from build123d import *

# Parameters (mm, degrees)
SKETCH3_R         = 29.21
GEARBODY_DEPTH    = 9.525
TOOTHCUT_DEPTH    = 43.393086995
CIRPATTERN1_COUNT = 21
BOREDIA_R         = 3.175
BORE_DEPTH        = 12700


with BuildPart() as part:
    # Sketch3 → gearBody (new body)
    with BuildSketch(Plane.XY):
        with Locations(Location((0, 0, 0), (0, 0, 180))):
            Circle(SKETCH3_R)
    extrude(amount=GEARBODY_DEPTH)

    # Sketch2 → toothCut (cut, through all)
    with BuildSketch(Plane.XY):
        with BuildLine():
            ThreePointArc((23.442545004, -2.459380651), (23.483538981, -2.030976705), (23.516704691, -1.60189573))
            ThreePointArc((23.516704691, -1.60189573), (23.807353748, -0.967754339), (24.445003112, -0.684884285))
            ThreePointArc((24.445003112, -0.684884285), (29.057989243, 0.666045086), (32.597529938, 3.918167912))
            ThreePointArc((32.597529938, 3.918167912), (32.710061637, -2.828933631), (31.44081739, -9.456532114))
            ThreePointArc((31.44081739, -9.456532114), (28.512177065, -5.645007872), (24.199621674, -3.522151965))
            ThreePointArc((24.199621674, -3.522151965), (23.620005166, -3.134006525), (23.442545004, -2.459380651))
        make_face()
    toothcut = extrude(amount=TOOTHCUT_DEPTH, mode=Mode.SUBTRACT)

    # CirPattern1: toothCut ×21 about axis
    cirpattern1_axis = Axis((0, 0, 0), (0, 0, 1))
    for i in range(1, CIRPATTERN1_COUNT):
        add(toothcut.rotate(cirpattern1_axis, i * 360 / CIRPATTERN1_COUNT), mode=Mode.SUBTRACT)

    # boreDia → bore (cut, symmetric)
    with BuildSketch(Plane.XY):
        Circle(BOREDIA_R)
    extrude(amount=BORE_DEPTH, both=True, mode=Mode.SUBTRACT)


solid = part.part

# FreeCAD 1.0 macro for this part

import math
import FreeCAD as App
import Part
import Sketcher
Q = App.Units.Quantity

doc = App.newDocument("Part")
body = doc.addObject("PartDesign::Body", "Body")

sketch1 = body.newObject("Sketcher::SketchObject", "Sketch")
sketch1.AttachmentSupport = (doc.getObject("XY_Plane"), [""])
sketch1.MapMode = "FlatFace"
sketch1.addGeometry(Part.Circle(App.Vector(0, 0, 0), App.Vector(0, 0, 1), 29), False)
sketch1.addConstraint(Sketcher.Constraint("Coincident", 0, 3, -1, 1))
sketch1.addConstraint(Sketcher.Constraint("Diameter", 0, Q("2.3 in")))
pad1 = body.newObject("PartDesign::Pad", "Pad")
pad1.Profile = sketch1
pad1.Length = Q("0.375 in")

sketch2 = body.newObject("Sketcher::SketchObject", "Sketch001")
sketch2.AttachmentSupport = (doc.getObject("XY_Plane"), [""])
sketch2.MapMode = "FlatFace"
sketch2.addGeometry(Part.ArcOfCircle(Part.Circle(App.Vector(0, 0, 0), App.Vector(0, 0, 1), 23.6), math.radians(-5.99), math.radians(-3.9)), False)
sketch2.addGeometry(Part.ArcOfCircle(Part.Circle(App.Vector(24.4, -2.6, 0), App.Vector(0, 0, 1), 1), math.radians(174), math.radians(257)), False)
sketch2.addGeometry(Part.ArcOfCircle(Part.Circle(App.Vector(21.8, -13.8, 0), App.Vector(0, 0, 1), 10.6), math.radians(24), math.radians(77)), False)
sketch2.addGeometry(Part.ArcOfCircle(Part.Circle(App.Vector(0, 0, 0), App.Vector(0, 0, 1), 32.8), math.radians(-17), math.radians(7)), False)
sketch2.addGeometry(Part.ArcOfCircle(Part.Circle(App.Vector(23.9, 9.9, 0), App.Vector(0, 0, 1), 10.6), math.radians(-87), math.radians(-34)), False)
sketch2.addGeometry(Part.ArcOfCircle(Part.Circle(App.Vector(24.5, -1.7, 0), App.Vector(0, 0, 1), 1), math.radians(93), math.radians(176)), False)
sketch2.addConstraint(Sketcher.Constraint("Tangent", 0, 1, 1, 1))
sketch2.addConstraint(Sketcher.Constraint("Tangent", 1, 2, 2, 2))
sketch2.addConstraint(Sketcher.Constraint("Coincident", 2, 1, 3, 1))
sketch2.addConstraint(Sketcher.Constraint("Coincident", 3, 2, 4, 2))
sketch2.addConstraint(Sketcher.Constraint("Tangent", 4, 1, 5, 1))
sketch2.addConstraint(Sketcher.Constraint("Tangent", 5, 2, 0, 2))
sketch2.addConstraint(Sketcher.Constraint("Coincident", 0, 3, -1, 1))
sketch2.addConstraint(Sketcher.Constraint("Coincident", 3, 3, -1, 1))
sketch2.addConstraint(Sketcher.Constraint("Equal", 2, 4))
sketch2.addConstraint(Sketcher.Constraint("Equal", 1, 5))
sketch2.addConstraint(Sketcher.Constraint("Radius", 0, Q("0.928 in")))
sketch2.addConstraint(Sketcher.Constraint("Radius", 1, Q("0.0388 in")))
sketch2.addConstraint(Sketcher.Constraint("Radius", 2, Q("10.582419 mm")))
sketch2.addConstraint(Sketcher.Constraint("Radius", 3, Q("32.832164 mm")))
sketch2.addConstraint(Sketcher.Constraint("DistanceX", 0, 1, 5, 3, Q("1.057401 mm")))
sketch2.addConstraint(Sketcher.Constraint("DistanceX", 4, 3, 3, 2, Q("8.742501 mm")))
sketch2.addConstraint(Sketcher.Constraint("DistanceY", 1, 3, -1, 1, Q("2.562208 mm")))
sketch2.addConstraint(Sketcher.Constraint("DistanceX", -1, 1, 2, 3, Q("21.804379 mm")))
pocket1 = body.newObject("PartDesign::Pocket", "Pocket")
pocket1.Profile = sketch2
pocket1.Type = "ThroughAll"
pocket1.Reversed = True
doc.recompute()

polarpattern = body.newObject("PartDesign::PolarPattern", "PolarPattern")
polarpattern.Originals = [pocket1]
polarpattern.Axis = (doc.getObject("Z_Axis"), [""])
polarpattern.Angle = 360
polarpattern.Occurrences = 21
body.Tip = polarpattern

sketch3 = body.newObject("Sketcher::SketchObject", "Sketch002")
sketch3.AttachmentSupport = (doc.getObject("XY_Plane"), [""])
sketch3.MapMode = "FlatFace"
sketch3.addGeometry(Part.Circle(App.Vector(0, 0, 0), App.Vector(0, 0, 1), 3.2), False)
sketch3.addConstraint(Sketcher.Constraint("Coincident", 0, 3, -1, 1))
sketch3.addConstraint(Sketcher.Constraint("Diameter", 0, Q("0.25 in")))
pocket2 = body.newObject("PartDesign::Pocket", "Pocket001")
pocket2.Profile = sketch3
pocket2.Length = Q("1000 in")
pocket2.Midplane = True

doc.recompute()
